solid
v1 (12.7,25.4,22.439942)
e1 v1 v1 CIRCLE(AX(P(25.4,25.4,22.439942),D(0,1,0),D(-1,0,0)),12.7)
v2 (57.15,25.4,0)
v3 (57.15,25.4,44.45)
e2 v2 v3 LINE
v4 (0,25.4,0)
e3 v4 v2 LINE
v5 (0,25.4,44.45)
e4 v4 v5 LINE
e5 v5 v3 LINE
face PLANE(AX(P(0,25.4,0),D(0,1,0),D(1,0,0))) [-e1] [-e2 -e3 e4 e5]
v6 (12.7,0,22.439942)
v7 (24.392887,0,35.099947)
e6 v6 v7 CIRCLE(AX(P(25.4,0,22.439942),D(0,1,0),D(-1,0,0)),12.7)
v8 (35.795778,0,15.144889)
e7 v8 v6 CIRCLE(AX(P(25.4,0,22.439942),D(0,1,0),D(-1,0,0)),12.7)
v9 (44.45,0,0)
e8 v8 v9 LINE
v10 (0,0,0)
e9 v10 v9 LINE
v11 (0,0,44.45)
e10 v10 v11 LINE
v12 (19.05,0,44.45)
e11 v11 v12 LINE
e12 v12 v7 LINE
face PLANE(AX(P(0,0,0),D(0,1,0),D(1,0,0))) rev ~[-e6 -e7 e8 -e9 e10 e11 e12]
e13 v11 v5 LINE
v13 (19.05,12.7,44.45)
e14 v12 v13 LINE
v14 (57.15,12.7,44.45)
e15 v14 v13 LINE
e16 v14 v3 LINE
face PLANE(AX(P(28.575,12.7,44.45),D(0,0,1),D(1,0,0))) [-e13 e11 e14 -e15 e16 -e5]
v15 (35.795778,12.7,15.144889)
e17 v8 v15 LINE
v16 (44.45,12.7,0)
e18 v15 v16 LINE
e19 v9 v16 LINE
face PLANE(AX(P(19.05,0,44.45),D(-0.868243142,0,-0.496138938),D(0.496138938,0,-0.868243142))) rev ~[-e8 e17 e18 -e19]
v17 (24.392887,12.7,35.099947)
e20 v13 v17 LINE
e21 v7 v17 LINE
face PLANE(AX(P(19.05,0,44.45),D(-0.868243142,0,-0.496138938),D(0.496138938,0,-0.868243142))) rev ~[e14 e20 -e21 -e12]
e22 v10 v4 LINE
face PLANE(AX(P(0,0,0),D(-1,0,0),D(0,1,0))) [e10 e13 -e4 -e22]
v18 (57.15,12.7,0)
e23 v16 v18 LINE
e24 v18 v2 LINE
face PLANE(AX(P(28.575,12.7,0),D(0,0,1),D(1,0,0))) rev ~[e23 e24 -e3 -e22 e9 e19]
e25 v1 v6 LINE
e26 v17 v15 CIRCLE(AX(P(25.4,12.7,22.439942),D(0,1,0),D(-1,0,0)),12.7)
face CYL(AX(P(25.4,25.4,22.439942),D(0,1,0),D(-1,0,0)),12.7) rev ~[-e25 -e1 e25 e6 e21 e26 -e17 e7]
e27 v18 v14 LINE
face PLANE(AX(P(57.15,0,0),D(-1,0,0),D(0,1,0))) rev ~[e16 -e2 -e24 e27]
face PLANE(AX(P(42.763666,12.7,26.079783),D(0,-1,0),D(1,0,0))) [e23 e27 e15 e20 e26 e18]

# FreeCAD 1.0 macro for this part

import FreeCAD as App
import Part
import Sketcher
from FreeCAD import Vector
Q = App.Units.Quantity


def add_polygon(sketch, points):
    """Adds a closed chain of lines whose ends are joined by coincident constraints."""
    first, n = sketch.GeometryCount, len(points)
    for a, b in zip(points, points[1:] + points[:1]):
        sketch.addGeometry(Part.LineSegment(App.Vector(*a, 0), App.Vector(*b, 0)), False)
    for i in range(n):
        sketch.addConstraint(Sketcher.Constraint("Coincident", first + i, 2, first + (i + 1) % n, 1))

doc = App.newDocument("Part")
body = doc.addObject("PartDesign::Body", "Body")

# Sketch on XY plane
sketch1 = body.newObject("Sketcher::SketchObject", "Sketch")
sketch1.AttachmentSupport = (doc.getObject("XY_Plane"), [""])
sketch1.MapMode = "FlatFace"
add_polygon(sketch1, [(0, 25), (0, 0), (57, 0), (57, 25)])  # lines 0-3
sketch1.addConstraint([
    Sketcher.Constraint("Vertical", 0),
    Sketcher.Constraint("Horizontal", 1),
    Sketcher.Constraint("Vertical", 2),
    Sketcher.Constraint("Horizontal", 3),
    Sketcher.Constraint("Coincident", 0, 2, -1, 1),
    Sketcher.Constraint("DistanceY", 0, 2, 0, 1, Q("1 in")),
    Sketcher.Constraint("DistanceX", 1, 1, 1, 2, Q("2.25 in")),
])
pad1 = body.newObject("PartDesign::Pad", "Pad")
pad1.Profile = sketch1
pad1.Length = Q("1.75 in")

# Sketch on XZ plane
sketch2 = body.newObject("Sketcher::SketchObject", "Sketch001")
sketch2.AttachmentSupport = (doc.getObject("XZ_Plane"), [""])
sketch2.MapMode = "FlatFace"
add_polygon(sketch2, [(57, 44), (19, 44), (44, 0), (57, 0)])  # lines 0-3
sketch2.addConstraint([
    Sketcher.Constraint("Horizontal", 0),
    Sketcher.Constraint("Horizontal", 2),
    Sketcher.Constraint("Vertical", 3),
    Sketcher.Constraint("PointOnObject", 1, 2, -1),
    Sketcher.Constraint("DistanceX", 0, 2, 0, 1, Q("1.5 in")),
    Sketcher.Constraint("DistanceX", 2, 1, 2, 2, Q("0.5 in")),
    Sketcher.Constraint("DistanceY", 3, 1, 3, 2, Q("1.75 in")),
    Sketcher.Constraint("DistanceX", -1, 1, 0, 2, Q("0.75 in")),
])
pocket1 = body.newObject("PartDesign::Pocket", "Pocket")
pocket1.Profile = sketch2
pocket1.Length = Q("0.5 in")

# Sketch on XZ plane
sketch3 = body.newObject("Sketcher::SketchObject", "Sketch002")
sketch3.AttachmentSupport = (doc.getObject("XZ_Plane"), [""])
sketch3.MapMode = "FlatFace"
sketch3.AttachmentOffset = App.Placement(Vector(0, 0, -1 * 25.4), App.Rotation())
sketch3.addGeometry(Part.Circle(Vector(25, 22, 0), Vector(0, 0, 1), 13), False)
sketch3.addConstraint([
    Sketcher.Constraint("Diameter", 0, Q("1 in")),
    Sketcher.Constraint("DistanceX", -1, 1, 0, 3, Q("1 in")),
    Sketcher.Constraint("DistanceY", -1, 1, 0, 3, Q("22.439942 mm")),
])
pocket2 = body.newObject("PartDesign::Pocket", "Pocket001")
pocket2.Profile = sketch3
pocket2.Length = Q("1 in")
pocket2.Reversed = True

doc.recompute()
